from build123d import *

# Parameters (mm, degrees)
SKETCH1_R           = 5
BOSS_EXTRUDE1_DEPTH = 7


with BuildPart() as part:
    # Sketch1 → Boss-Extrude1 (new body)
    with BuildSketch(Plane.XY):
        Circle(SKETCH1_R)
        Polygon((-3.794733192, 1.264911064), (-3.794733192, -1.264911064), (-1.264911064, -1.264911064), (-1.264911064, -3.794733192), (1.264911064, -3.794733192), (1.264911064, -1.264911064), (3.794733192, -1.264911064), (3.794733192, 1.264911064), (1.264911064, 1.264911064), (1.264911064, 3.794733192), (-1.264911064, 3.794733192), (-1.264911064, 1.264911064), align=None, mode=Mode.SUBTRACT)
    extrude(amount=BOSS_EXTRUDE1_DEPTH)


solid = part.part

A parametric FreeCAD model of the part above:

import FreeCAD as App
import Part
import Sketcher


def add_polygon(sketch, points):
    """Adds a closed chain of lines whose ends are joined by coincident constraints."""
    first, n = sketch.GeometryCount, len(points)
    for a, b in zip(points, points[1:] + points[:1]):
        sketch.addGeometry(Part.LineSegment(App.Vector(*a, 0), App.Vector(*b, 0)), False)
    for i in range(n):
        sketch.addConstraint(Sketcher.Constraint("Coincident", first + i, 2, first + (i + 1) % n, 1))

doc = App.newDocument("Part")
body = doc.addObject("PartDesign::Body", "Body")

sketch1 = body.newObject("Sketcher::SketchObject", "Sketch")
sketch1.AttachmentSupport = (doc.getObject("XY_Plane"), [""])
sketch1.MapMode = "FlatFace"
sketch1.addGeometry(Part.Circle(App.Vector(0, 0, 0), App.Vector(0, 0, 1), 5), False)
add_polygon(sketch1, [(-3.8, -1.3), (-3.8, 1.3), (-1.3, 1.3), (-1.3, 3.8), (1.3, 3.8), (1.3, 1.3), (3.8, 1.3), (3.8, -1.3), (1.3, -1.3), (1.3, -3.8), (-1.3, -3.8), (-1.3, -1.3)])
sketch1.addConstraint([
    Sketcher.Constraint("Vertical", 1),
    Sketcher.Constraint("Horizontal", 2),
    Sketcher.Constraint("Vertical", 3),
    Sketcher.Constraint("Horizontal", 4),
    Sketcher.Constraint("Vertical", 5),
    Sketcher.Constraint("Horizontal", 6),
    Sketcher.Constraint("Vertical", 7),
    Sketcher.Constraint("Horizontal", 8),
    Sketcher.Constraint("Vertical", 9),
    Sketcher.Constraint("Horizontal", 10),
    Sketcher.Constraint("Vertical", 11),
    Sketcher.Constraint("Horizontal", 12),
    Sketcher.Constraint("Coincident", 0, 3, -1, 1),
    Sketcher.Constraint("Symmetric", 1, 2, 7, 2, -1, 1),
    Sketcher.Constraint("Symmetric", 3, 2, 9, 2, -1, 1),
    Sketcher.Constraint("Symmetric", 5, 2, 11, 2, -1, 1),
    Sketcher.Constraint("Symmetric", 2, 2, 5, 2, -2),
    Sketcher.Constraint("Equal", 2, 4),
    Sketcher.Constraint("Equal", 12, 1),
    Sketcher.Constraint("Equal", 1, 3),
    Sketcher.Constraint("Diameter", 0, 10.0),
    Sketcher.Constraint("DistanceX", 2, 1, 2, 2, 2.529822),
])
pad1 = body.newObject("PartDesign::Pad", "Pad")
pad1.Profile = sketch1
pad1.Length = 7

doc.recompute()
